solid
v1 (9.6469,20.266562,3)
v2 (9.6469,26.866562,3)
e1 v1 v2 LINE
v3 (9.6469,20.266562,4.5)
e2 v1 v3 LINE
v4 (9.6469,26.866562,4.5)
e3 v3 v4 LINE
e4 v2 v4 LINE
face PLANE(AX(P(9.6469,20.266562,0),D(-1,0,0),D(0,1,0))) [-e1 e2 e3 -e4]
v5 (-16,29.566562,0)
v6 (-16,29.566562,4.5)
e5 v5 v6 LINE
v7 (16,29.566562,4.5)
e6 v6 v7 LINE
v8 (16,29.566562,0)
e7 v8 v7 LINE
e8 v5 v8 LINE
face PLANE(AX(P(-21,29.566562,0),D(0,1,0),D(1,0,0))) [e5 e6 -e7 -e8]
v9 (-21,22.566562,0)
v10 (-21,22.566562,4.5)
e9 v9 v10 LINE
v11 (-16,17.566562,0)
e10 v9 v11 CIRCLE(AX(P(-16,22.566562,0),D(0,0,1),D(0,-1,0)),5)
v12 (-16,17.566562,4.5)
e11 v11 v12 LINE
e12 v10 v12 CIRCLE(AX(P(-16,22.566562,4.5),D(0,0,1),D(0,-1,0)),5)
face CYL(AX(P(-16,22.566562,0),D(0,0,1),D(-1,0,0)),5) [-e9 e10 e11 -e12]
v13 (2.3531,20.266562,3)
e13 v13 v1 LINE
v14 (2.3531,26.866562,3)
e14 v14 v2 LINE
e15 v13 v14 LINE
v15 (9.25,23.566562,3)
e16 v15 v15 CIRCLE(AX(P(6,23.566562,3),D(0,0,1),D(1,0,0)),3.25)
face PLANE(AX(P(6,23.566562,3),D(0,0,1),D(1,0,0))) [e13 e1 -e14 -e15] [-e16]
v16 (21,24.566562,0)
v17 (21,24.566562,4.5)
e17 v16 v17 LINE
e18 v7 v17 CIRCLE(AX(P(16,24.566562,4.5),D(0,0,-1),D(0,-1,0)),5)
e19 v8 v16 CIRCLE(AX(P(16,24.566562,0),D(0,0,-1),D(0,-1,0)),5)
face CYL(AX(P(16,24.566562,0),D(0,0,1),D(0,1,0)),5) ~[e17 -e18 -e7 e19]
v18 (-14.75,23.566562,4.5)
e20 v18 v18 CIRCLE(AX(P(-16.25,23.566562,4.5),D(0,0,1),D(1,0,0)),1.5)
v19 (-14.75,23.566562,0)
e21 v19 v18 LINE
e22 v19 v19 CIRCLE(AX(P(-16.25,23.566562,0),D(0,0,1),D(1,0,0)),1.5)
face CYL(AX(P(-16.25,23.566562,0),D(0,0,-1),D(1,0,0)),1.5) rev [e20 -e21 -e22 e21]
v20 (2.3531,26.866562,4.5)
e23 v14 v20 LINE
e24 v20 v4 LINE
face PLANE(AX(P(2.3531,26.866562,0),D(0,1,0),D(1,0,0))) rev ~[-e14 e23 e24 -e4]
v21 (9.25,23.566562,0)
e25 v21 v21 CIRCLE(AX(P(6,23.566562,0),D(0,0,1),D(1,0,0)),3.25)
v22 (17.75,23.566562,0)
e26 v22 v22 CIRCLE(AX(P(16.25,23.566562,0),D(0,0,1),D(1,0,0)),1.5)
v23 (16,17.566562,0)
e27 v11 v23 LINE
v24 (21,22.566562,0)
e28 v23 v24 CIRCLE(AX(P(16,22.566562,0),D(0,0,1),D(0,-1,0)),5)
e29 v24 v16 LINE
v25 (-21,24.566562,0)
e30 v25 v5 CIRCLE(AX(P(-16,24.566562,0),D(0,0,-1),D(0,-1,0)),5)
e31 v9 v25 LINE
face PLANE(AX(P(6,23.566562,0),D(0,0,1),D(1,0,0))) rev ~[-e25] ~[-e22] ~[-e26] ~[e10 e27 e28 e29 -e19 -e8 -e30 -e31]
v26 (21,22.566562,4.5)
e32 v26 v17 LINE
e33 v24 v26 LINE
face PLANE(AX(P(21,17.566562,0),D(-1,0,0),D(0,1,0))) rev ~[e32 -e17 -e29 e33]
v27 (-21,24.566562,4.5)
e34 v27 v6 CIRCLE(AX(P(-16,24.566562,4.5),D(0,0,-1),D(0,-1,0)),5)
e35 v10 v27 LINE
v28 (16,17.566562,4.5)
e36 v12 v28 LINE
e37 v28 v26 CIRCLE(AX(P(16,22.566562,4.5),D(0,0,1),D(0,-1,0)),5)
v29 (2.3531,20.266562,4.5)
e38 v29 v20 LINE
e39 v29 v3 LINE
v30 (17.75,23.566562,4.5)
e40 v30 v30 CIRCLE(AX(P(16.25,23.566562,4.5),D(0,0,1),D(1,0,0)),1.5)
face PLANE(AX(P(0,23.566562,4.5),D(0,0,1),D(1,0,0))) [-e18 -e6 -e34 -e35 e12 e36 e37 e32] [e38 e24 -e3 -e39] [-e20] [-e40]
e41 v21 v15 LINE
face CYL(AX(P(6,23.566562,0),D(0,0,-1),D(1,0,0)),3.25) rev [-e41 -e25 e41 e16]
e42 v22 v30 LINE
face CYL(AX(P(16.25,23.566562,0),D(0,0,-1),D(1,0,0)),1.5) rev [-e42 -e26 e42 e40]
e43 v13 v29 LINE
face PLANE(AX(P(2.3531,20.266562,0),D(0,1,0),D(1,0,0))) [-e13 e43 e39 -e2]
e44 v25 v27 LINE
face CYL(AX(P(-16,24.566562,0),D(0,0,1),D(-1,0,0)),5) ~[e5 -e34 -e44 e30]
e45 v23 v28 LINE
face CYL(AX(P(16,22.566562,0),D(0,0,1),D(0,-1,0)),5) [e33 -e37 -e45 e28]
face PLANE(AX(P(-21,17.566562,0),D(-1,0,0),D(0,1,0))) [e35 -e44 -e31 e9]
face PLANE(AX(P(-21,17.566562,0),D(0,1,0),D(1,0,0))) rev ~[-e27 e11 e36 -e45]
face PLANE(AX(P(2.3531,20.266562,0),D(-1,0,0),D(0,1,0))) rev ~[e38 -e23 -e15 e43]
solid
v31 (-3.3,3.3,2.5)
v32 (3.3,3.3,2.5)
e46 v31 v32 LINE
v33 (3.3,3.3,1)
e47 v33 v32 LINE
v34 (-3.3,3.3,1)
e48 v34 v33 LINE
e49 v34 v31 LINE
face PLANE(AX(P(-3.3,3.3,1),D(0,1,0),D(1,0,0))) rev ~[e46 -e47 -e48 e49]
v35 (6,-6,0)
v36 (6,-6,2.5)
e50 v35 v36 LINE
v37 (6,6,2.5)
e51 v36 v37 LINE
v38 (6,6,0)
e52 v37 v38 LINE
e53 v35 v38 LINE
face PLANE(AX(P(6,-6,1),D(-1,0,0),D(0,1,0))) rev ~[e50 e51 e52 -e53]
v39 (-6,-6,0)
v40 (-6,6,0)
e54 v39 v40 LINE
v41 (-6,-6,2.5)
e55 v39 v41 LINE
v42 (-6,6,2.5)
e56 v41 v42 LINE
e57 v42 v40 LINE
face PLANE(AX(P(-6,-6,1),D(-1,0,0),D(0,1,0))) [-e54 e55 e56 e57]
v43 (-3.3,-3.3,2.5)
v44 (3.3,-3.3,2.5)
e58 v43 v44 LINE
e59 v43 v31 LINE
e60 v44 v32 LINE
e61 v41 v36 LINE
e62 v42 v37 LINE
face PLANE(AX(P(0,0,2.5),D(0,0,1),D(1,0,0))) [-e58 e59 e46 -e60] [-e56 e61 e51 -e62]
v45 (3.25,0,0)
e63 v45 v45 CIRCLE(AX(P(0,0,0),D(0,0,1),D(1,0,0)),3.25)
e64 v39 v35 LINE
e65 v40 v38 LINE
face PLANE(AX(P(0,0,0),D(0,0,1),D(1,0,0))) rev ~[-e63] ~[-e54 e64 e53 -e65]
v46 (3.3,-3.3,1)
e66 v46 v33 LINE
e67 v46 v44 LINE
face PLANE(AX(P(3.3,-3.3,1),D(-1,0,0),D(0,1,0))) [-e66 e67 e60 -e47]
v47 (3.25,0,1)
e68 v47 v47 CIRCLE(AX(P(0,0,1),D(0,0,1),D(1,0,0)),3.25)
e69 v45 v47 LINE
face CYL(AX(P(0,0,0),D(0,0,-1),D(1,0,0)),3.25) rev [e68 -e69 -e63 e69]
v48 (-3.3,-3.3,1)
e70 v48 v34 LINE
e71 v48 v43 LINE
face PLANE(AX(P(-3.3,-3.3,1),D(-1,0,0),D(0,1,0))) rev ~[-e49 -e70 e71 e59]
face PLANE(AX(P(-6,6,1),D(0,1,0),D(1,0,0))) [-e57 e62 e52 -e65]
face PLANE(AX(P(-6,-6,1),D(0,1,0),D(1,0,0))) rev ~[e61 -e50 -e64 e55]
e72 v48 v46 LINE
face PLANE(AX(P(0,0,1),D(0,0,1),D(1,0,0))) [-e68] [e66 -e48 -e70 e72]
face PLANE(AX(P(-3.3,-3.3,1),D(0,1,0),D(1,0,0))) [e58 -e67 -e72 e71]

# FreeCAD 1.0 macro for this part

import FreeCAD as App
import Part
import Sketcher

V = App.Vector


def edges_at(feature, points):
    """Names of the edges that pass closest to the given points."""
    edges = feature.Shape.Edges
    near = lambda p: min(range(len(edges)), key=lambda i: edges[i].distToShape(Part.Vertex(*p))[0])
    return sorted({f"Edge{near(p) + 1}" for p in points})

doc = App.newDocument("Part")
body = doc.addObject("PartDesign::Body", "Body")

# Sketch on XY plane
sketch1 = body.newObject("Sketcher::SketchObject", "Sketch")
sketch1.AttachmentSupport = (doc.getObject("XY_Plane"), [""])
sketch1.MapMode = "FlatFace"
sketch1.addGeometry(Part.LineSegment(V(-6, 6, 0), V(-6, -6, 0)), False)
sketch1.addGeometry(Part.LineSegment(V(-6, -6, 0), V(6, -6, 0)), False)
sketch1.addGeometry(Part.LineSegment(V(6, -6, 0), V(6, 6, 0)), False)
sketch1.addGeometry(Part.LineSegment(V(6, 6, 0), V(-6, 6, 0)), False)
sketch1.addGeometry(Part.Circle(V(0, 0, 0), V(0, 0, 1), 3.2), False)
sketch1.addConstraint(Sketcher.Constraint("Coincident", 0, 2, 1, 1))
sketch1.addConstraint(Sketcher.Constraint("Coincident", 1, 2, 2, 1))
sketch1.addConstraint(Sketcher.Constraint("Coincident", 2, 2, 3, 1))
sketch1.addConstraint(Sketcher.Constraint("Coincident", 3, 2, 0, 1))
sketch1.addConstraint(Sketcher.Constraint("Vertical", 0))
sketch1.addConstraint(Sketcher.Constraint("Horizontal", 1))
sketch1.addConstraint(Sketcher.Constraint("Vertical", 2))
sketch1.addConstraint(Sketcher.Constraint("Horizontal", 3))
sketch1.addConstraint(Sketcher.Constraint("Coincident", 4, 3, -1, 1))
sketch1.addConstraint(Sketcher.Constraint("Symmetric", 0, 2, 2, 2, -1, 1))
sketch1.addConstraint(Sketcher.Constraint("Equal", 3, 0))
sketch1.addConstraint(Sketcher.Constraint("Diameter", 4, 6.5))
sketch1.addConstraint(Sketcher.Constraint("DistanceX", 1, 1, 1, 2, 12.0))
pad1 = body.newObject("PartDesign::Pad", "Pad")
pad1.Profile = sketch1
pad1.Length = 1

# Sketch on XY plane
sketch2 = body.newObject("Sketcher::SketchObject", "Sketch001")
sketch2.AttachmentSupport = (doc.getObject("XY_Plane"), [""])
sketch2.MapMode = "FlatFace"
sketch2.AttachmentOffset = App.Placement(V(0, 0, 1), App.Rotation())
sketch2.addGeometry(Part.LineSegment(V(-6, 6, 0), V(-6, -6, 0)), False)
sketch2.addGeometry(Part.LineSegment(V(-6, -6, 0), V(6, -6, 0)), False)
sketch2.addGeometry(Part.LineSegment(V(6, -6, 0), V(6, 6, 0)), False)
sketch2.addGeometry(Part.LineSegment(V(6, 6, 0), V(-6, 6, 0)), False)
sketch2.addGeometry(Part.LineSegment(V(3, -3, 0), V(-3, -3, 0)), False)
sketch2.addGeometry(Part.LineSegment(V(-3, -3, 0), V(-3, 3, 0)), False)
sketch2.addGeometry(Part.LineSegment(V(-3, 3, 0), V(3, 3, 0)), False)
sketch2.addGeometry(Part.LineSegment(V(3, 3, 0), V(3, -3, 0)), False)
sketch2.addConstraint(Sketcher.Constraint("Coincident", 0, 2, 1, 1))
sketch2.addConstraint(Sketcher.Constraint("Coincident", 1, 2, 2, 1))
sketch2.addConstraint(Sketcher.Constraint("Coincident", 2, 2, 3, 1))
sketch2.addConstraint(Sketcher.Constraint("Coincident", 3, 2, 0, 1))
sketch2.addConstraint(Sketcher.Constraint("Coincident", 4, 2, 5, 1))
sketch2.addConstraint(Sketcher.Constraint("Coincident", 5, 2, 6, 1))
sketch2.addConstraint(Sketcher.Constraint("Coincident", 6, 2, 7, 1))
sketch2.addConstraint(Sketcher.Constraint("Coincident", 7, 2, 4, 1))
sketch2.addConstraint(Sketcher.Constraint("Vertical", 0))
sketch2.addConstraint(Sketcher.Constraint("Horizontal", 1))
sketch2.addConstraint(Sketcher.Constraint("Vertical", 2))
sketch2.addConstraint(Sketcher.Constraint("Horizontal", 3))
sketch2.addConstraint(Sketcher.Constraint("Horizontal", 4))
sketch2.addConstraint(Sketcher.Constraint("Vertical", 5))
sketch2.addConstraint(Sketcher.Constraint("Horizontal", 6))
sketch2.addConstraint(Sketcher.Constraint("Vertical", 7))
sketch2.addConstraint(Sketcher.Constraint("Symmetric", 0, 2, 2, 2, -1, 1))
sketch2.addConstraint(Sketcher.Constraint("Symmetric", 4, 2, 6, 2, -1, 1))
sketch2.addConstraint(Sketcher.Constraint("Equal", 3, 0))
sketch2.addConstraint(Sketcher.Constraint("Equal", 6, 5))
sketch2.addConstraint(Sketcher.Constraint("DistanceX", 1, 1, 1, 2, 12.0))
sketch2.addConstraint(Sketcher.Constraint("DistanceX", 4, 2, 4, 1, 6.6))
pad2 = body.newObject("PartDesign::Pad", "Pad001")
pad2.Profile = sketch2
pad2.Length = 1.5
body2 = doc.addObject("PartDesign::Body", "Body001")

# Sketch on XY plane
sketch3 = body2.newObject("Sketcher::SketchObject", "Sketch002")
sketch3.AttachmentSupport = (doc.getObject("XY_Plane001"), [""])
sketch3.MapMode = "FlatFace"
sketch3.addGeometry(Part.LineSegment(V(-21, 29.6, 0), V(-21, 17.6, 0)), False)
sketch3.addGeometry(Part.LineSegment(V(-21, 17.6, 0), V(21, 17.6, 0)), False)
sketch3.addGeometry(Part.LineSegment(V(21, 17.6, 0), V(21, 29.6, 0)), False)
sketch3.addGeometry(Part.LineSegment(V(21, 29.6, 0), V(-21, 29.6, 0)), False)
sketch3.addGeometry(Part.Circle(V(-16.2, 23.6, 0), V(0, 0, 1), 1.5), False)
sketch3.addGeometry(Part.LineSegment(V(9.6, 20.3, 0), V(2.4, 20.3, 0)), False)
sketch3.addGeometry(Part.LineSegment(V(2.4, 20.3, 0), V(2.4, 26.9, 0)), False)
sketch3.addGeometry(Part.LineSegment(V(2.4, 26.9, 0), V(9.6, 26.9, 0)), False)
sketch3.addGeometry(Part.LineSegment(V(9.6, 26.9, 0), V(9.6, 20.3, 0)), False)
sketch3.addGeometry(Part.Circle(V(16.2, 23.6, 0), V(0, 0, 1), 1.5), False)
sketch3.addConstraint(Sketcher.Constraint("Coincident", 0, 2, 1, 1))
sketch3.addConstraint(Sketcher.Constraint("Coincident", 1, 2, 2, 1))
sketch3.addConstraint(Sketcher.Constraint("Coincident", 2, 2, 3, 1))
sketch3.addConstraint(Sketcher.Constraint("Coincident", 3, 2, 0, 1))
sketch3.addConstraint(Sketcher.Constraint("Coincident", 5, 2, 6, 1))
sketch3.addConstraint(Sketcher.Constraint("Coincident", 6, 2, 7, 1))
sketch3.addConstraint(Sketcher.Constraint("Coincident", 7, 2, 8, 1))
sketch3.addConstraint(Sketcher.Constraint("Coincident", 8, 2, 5, 1))
sketch3.addConstraint(Sketcher.Constraint("Vertical", 0))
sketch3.addConstraint(Sketcher.Constraint("Horizontal", 1))
sketch3.addConstraint(Sketcher.Constraint("Vertical", 2))
sketch3.addConstraint(Sketcher.Constraint("Horizontal", 3))
sketch3.addConstraint(Sketcher.Constraint("Horizontal", 5))
sketch3.addConstraint(Sketcher.Constraint("Vertical", 6))
sketch3.addConstraint(Sketcher.Constraint("Horizontal", 7))
sketch3.addConstraint(Sketcher.Constraint("Vertical", 8))
sketch3.addConstraint(Sketcher.Constraint("Equal", 4, 9))
sketch3.addConstraint(Sketcher.Constraint("Symmetric", 4, 3, 9, 3, -2))
sketch3.addConstraint(Sketcher.Constraint("Diameter", 4, 3.0))
sketch3.addConstraint(Sketcher.Constraint("DistanceX", 1, 1, 1, 2, 42.0))
sketch3.addConstraint(Sketcher.Constraint("DistanceY", 0, 2, 0, 1, 12.0))
sketch3.addConstraint(Sketcher.Constraint("DistanceY", 6, 1, 6, 2, 6.6))
sketch3.addConstraint(Sketcher.Constraint("DistanceX", 0, 2, -1, 1, 21.0))
sketch3.addConstraint(Sketcher.Constraint("DistanceY", 0, 2, 4, 3, 6.0))
sketch3.addConstraint(Sketcher.Constraint("DistanceX", 4, 3, 9, 3, 32.5))
sketch3.addConstraint(Sketcher.Constraint("DistanceY", 5, 2, 9, 3, 3.3))
sketch3.addConstraint(Sketcher.Constraint("DistanceX", 5, 2, 5, 1, 7.2938))
sketch3.addConstraint(Sketcher.Constraint("DistanceX", -1, 1, 5, 2, 2.3531))
sketch3.addConstraint(Sketcher.Constraint("DistanceY", -1, 1, 4, 3, 23.566562))
pad3 = body2.newObject("PartDesign::Pad", "Pad002")
pad3.Profile = sketch3
pad3.Length = 4.5

# Sketch on XY plane
sketch4 = body2.newObject("Sketcher::SketchObject", "Sketch003")
sketch4.AttachmentSupport = (doc.getObject("XY_Plane001"), [""])
sketch4.MapMode = "FlatFace"
sketch4.addGeometry(Part.LineSegment(V(2.4, 26.9, 0), V(2.4, 20.3, 0)), False)
sketch4.addGeometry(Part.LineSegment(V(2.4, 20.3, 0), V(9.6, 20.3, 0)), False)
sketch4.addGeometry(Part.LineSegment(V(9.6, 20.3, 0), V(9.6, 26.9, 0)), False)
sketch4.addGeometry(Part.LineSegment(V(9.6, 26.9, 0), V(2.4, 26.9, 0)), False)
sketch4.addGeometry(Part.Circle(V(6, 23.6, 0), V(0, 0, 1), 3.2), False)
sketch4.addConstraint(Sketcher.Constraint("Coincident", 0, 2, 1, 1))
sketch4.addConstraint(Sketcher.Constraint("Coincident", 1, 2, 2, 1))
sketch4.addConstraint(Sketcher.Constraint("Coincident", 2, 2, 3, 1))
sketch4.addConstraint(Sketcher.Constraint("Coincident", 3, 2, 0, 1))
sketch4.addConstraint(Sketcher.Constraint("Vertical", 0))
sketch4.addConstraint(Sketcher.Constraint("Horizontal", 1))
sketch4.addConstraint(Sketcher.Constraint("Vertical", 2))
sketch4.addConstraint(Sketcher.Constraint("Horizontal", 3))
sketch4.addConstraint(Sketcher.Constraint("Diameter", 4, 6.5))
sketch4.addConstraint(Sketcher.Constraint("DistanceY", 0, 2, 0, 1, 6.6))
sketch4.addConstraint(Sketcher.Constraint("DistanceX", -1, 1, 4, 3, 6.0))
sketch4.addConstraint(Sketcher.Constraint("DistanceY", 0, 2, 4, 3, 3.3))
sketch4.addConstraint(Sketcher.Constraint("DistanceX", 1, 1, 1, 2, 7.2938))
sketch4.addConstraint(Sketcher.Constraint("DistanceX", -1, 1, 0, 2, 2.3531))
sketch4.addConstraint(Sketcher.Constraint("DistanceY", -1, 1, 4, 3, 23.566562))
pad4 = body2.newObject("PartDesign::Pad", "Pad003")
pad4.Profile = sketch4
pad4.Length = 3
doc.recompute()

fillet = body2.newObject("PartDesign::Fillet", "Fillet")
fillet.Base = (pad4, edges_at(pad4, [
    (21, 17.567, 2.25),
    (-21, 17.567, 2.25),
    (21, 29.567, 2.25),
    (-21, 29.567, 2.25),
]))
fillet.Radius = 5

doc.recompute()
